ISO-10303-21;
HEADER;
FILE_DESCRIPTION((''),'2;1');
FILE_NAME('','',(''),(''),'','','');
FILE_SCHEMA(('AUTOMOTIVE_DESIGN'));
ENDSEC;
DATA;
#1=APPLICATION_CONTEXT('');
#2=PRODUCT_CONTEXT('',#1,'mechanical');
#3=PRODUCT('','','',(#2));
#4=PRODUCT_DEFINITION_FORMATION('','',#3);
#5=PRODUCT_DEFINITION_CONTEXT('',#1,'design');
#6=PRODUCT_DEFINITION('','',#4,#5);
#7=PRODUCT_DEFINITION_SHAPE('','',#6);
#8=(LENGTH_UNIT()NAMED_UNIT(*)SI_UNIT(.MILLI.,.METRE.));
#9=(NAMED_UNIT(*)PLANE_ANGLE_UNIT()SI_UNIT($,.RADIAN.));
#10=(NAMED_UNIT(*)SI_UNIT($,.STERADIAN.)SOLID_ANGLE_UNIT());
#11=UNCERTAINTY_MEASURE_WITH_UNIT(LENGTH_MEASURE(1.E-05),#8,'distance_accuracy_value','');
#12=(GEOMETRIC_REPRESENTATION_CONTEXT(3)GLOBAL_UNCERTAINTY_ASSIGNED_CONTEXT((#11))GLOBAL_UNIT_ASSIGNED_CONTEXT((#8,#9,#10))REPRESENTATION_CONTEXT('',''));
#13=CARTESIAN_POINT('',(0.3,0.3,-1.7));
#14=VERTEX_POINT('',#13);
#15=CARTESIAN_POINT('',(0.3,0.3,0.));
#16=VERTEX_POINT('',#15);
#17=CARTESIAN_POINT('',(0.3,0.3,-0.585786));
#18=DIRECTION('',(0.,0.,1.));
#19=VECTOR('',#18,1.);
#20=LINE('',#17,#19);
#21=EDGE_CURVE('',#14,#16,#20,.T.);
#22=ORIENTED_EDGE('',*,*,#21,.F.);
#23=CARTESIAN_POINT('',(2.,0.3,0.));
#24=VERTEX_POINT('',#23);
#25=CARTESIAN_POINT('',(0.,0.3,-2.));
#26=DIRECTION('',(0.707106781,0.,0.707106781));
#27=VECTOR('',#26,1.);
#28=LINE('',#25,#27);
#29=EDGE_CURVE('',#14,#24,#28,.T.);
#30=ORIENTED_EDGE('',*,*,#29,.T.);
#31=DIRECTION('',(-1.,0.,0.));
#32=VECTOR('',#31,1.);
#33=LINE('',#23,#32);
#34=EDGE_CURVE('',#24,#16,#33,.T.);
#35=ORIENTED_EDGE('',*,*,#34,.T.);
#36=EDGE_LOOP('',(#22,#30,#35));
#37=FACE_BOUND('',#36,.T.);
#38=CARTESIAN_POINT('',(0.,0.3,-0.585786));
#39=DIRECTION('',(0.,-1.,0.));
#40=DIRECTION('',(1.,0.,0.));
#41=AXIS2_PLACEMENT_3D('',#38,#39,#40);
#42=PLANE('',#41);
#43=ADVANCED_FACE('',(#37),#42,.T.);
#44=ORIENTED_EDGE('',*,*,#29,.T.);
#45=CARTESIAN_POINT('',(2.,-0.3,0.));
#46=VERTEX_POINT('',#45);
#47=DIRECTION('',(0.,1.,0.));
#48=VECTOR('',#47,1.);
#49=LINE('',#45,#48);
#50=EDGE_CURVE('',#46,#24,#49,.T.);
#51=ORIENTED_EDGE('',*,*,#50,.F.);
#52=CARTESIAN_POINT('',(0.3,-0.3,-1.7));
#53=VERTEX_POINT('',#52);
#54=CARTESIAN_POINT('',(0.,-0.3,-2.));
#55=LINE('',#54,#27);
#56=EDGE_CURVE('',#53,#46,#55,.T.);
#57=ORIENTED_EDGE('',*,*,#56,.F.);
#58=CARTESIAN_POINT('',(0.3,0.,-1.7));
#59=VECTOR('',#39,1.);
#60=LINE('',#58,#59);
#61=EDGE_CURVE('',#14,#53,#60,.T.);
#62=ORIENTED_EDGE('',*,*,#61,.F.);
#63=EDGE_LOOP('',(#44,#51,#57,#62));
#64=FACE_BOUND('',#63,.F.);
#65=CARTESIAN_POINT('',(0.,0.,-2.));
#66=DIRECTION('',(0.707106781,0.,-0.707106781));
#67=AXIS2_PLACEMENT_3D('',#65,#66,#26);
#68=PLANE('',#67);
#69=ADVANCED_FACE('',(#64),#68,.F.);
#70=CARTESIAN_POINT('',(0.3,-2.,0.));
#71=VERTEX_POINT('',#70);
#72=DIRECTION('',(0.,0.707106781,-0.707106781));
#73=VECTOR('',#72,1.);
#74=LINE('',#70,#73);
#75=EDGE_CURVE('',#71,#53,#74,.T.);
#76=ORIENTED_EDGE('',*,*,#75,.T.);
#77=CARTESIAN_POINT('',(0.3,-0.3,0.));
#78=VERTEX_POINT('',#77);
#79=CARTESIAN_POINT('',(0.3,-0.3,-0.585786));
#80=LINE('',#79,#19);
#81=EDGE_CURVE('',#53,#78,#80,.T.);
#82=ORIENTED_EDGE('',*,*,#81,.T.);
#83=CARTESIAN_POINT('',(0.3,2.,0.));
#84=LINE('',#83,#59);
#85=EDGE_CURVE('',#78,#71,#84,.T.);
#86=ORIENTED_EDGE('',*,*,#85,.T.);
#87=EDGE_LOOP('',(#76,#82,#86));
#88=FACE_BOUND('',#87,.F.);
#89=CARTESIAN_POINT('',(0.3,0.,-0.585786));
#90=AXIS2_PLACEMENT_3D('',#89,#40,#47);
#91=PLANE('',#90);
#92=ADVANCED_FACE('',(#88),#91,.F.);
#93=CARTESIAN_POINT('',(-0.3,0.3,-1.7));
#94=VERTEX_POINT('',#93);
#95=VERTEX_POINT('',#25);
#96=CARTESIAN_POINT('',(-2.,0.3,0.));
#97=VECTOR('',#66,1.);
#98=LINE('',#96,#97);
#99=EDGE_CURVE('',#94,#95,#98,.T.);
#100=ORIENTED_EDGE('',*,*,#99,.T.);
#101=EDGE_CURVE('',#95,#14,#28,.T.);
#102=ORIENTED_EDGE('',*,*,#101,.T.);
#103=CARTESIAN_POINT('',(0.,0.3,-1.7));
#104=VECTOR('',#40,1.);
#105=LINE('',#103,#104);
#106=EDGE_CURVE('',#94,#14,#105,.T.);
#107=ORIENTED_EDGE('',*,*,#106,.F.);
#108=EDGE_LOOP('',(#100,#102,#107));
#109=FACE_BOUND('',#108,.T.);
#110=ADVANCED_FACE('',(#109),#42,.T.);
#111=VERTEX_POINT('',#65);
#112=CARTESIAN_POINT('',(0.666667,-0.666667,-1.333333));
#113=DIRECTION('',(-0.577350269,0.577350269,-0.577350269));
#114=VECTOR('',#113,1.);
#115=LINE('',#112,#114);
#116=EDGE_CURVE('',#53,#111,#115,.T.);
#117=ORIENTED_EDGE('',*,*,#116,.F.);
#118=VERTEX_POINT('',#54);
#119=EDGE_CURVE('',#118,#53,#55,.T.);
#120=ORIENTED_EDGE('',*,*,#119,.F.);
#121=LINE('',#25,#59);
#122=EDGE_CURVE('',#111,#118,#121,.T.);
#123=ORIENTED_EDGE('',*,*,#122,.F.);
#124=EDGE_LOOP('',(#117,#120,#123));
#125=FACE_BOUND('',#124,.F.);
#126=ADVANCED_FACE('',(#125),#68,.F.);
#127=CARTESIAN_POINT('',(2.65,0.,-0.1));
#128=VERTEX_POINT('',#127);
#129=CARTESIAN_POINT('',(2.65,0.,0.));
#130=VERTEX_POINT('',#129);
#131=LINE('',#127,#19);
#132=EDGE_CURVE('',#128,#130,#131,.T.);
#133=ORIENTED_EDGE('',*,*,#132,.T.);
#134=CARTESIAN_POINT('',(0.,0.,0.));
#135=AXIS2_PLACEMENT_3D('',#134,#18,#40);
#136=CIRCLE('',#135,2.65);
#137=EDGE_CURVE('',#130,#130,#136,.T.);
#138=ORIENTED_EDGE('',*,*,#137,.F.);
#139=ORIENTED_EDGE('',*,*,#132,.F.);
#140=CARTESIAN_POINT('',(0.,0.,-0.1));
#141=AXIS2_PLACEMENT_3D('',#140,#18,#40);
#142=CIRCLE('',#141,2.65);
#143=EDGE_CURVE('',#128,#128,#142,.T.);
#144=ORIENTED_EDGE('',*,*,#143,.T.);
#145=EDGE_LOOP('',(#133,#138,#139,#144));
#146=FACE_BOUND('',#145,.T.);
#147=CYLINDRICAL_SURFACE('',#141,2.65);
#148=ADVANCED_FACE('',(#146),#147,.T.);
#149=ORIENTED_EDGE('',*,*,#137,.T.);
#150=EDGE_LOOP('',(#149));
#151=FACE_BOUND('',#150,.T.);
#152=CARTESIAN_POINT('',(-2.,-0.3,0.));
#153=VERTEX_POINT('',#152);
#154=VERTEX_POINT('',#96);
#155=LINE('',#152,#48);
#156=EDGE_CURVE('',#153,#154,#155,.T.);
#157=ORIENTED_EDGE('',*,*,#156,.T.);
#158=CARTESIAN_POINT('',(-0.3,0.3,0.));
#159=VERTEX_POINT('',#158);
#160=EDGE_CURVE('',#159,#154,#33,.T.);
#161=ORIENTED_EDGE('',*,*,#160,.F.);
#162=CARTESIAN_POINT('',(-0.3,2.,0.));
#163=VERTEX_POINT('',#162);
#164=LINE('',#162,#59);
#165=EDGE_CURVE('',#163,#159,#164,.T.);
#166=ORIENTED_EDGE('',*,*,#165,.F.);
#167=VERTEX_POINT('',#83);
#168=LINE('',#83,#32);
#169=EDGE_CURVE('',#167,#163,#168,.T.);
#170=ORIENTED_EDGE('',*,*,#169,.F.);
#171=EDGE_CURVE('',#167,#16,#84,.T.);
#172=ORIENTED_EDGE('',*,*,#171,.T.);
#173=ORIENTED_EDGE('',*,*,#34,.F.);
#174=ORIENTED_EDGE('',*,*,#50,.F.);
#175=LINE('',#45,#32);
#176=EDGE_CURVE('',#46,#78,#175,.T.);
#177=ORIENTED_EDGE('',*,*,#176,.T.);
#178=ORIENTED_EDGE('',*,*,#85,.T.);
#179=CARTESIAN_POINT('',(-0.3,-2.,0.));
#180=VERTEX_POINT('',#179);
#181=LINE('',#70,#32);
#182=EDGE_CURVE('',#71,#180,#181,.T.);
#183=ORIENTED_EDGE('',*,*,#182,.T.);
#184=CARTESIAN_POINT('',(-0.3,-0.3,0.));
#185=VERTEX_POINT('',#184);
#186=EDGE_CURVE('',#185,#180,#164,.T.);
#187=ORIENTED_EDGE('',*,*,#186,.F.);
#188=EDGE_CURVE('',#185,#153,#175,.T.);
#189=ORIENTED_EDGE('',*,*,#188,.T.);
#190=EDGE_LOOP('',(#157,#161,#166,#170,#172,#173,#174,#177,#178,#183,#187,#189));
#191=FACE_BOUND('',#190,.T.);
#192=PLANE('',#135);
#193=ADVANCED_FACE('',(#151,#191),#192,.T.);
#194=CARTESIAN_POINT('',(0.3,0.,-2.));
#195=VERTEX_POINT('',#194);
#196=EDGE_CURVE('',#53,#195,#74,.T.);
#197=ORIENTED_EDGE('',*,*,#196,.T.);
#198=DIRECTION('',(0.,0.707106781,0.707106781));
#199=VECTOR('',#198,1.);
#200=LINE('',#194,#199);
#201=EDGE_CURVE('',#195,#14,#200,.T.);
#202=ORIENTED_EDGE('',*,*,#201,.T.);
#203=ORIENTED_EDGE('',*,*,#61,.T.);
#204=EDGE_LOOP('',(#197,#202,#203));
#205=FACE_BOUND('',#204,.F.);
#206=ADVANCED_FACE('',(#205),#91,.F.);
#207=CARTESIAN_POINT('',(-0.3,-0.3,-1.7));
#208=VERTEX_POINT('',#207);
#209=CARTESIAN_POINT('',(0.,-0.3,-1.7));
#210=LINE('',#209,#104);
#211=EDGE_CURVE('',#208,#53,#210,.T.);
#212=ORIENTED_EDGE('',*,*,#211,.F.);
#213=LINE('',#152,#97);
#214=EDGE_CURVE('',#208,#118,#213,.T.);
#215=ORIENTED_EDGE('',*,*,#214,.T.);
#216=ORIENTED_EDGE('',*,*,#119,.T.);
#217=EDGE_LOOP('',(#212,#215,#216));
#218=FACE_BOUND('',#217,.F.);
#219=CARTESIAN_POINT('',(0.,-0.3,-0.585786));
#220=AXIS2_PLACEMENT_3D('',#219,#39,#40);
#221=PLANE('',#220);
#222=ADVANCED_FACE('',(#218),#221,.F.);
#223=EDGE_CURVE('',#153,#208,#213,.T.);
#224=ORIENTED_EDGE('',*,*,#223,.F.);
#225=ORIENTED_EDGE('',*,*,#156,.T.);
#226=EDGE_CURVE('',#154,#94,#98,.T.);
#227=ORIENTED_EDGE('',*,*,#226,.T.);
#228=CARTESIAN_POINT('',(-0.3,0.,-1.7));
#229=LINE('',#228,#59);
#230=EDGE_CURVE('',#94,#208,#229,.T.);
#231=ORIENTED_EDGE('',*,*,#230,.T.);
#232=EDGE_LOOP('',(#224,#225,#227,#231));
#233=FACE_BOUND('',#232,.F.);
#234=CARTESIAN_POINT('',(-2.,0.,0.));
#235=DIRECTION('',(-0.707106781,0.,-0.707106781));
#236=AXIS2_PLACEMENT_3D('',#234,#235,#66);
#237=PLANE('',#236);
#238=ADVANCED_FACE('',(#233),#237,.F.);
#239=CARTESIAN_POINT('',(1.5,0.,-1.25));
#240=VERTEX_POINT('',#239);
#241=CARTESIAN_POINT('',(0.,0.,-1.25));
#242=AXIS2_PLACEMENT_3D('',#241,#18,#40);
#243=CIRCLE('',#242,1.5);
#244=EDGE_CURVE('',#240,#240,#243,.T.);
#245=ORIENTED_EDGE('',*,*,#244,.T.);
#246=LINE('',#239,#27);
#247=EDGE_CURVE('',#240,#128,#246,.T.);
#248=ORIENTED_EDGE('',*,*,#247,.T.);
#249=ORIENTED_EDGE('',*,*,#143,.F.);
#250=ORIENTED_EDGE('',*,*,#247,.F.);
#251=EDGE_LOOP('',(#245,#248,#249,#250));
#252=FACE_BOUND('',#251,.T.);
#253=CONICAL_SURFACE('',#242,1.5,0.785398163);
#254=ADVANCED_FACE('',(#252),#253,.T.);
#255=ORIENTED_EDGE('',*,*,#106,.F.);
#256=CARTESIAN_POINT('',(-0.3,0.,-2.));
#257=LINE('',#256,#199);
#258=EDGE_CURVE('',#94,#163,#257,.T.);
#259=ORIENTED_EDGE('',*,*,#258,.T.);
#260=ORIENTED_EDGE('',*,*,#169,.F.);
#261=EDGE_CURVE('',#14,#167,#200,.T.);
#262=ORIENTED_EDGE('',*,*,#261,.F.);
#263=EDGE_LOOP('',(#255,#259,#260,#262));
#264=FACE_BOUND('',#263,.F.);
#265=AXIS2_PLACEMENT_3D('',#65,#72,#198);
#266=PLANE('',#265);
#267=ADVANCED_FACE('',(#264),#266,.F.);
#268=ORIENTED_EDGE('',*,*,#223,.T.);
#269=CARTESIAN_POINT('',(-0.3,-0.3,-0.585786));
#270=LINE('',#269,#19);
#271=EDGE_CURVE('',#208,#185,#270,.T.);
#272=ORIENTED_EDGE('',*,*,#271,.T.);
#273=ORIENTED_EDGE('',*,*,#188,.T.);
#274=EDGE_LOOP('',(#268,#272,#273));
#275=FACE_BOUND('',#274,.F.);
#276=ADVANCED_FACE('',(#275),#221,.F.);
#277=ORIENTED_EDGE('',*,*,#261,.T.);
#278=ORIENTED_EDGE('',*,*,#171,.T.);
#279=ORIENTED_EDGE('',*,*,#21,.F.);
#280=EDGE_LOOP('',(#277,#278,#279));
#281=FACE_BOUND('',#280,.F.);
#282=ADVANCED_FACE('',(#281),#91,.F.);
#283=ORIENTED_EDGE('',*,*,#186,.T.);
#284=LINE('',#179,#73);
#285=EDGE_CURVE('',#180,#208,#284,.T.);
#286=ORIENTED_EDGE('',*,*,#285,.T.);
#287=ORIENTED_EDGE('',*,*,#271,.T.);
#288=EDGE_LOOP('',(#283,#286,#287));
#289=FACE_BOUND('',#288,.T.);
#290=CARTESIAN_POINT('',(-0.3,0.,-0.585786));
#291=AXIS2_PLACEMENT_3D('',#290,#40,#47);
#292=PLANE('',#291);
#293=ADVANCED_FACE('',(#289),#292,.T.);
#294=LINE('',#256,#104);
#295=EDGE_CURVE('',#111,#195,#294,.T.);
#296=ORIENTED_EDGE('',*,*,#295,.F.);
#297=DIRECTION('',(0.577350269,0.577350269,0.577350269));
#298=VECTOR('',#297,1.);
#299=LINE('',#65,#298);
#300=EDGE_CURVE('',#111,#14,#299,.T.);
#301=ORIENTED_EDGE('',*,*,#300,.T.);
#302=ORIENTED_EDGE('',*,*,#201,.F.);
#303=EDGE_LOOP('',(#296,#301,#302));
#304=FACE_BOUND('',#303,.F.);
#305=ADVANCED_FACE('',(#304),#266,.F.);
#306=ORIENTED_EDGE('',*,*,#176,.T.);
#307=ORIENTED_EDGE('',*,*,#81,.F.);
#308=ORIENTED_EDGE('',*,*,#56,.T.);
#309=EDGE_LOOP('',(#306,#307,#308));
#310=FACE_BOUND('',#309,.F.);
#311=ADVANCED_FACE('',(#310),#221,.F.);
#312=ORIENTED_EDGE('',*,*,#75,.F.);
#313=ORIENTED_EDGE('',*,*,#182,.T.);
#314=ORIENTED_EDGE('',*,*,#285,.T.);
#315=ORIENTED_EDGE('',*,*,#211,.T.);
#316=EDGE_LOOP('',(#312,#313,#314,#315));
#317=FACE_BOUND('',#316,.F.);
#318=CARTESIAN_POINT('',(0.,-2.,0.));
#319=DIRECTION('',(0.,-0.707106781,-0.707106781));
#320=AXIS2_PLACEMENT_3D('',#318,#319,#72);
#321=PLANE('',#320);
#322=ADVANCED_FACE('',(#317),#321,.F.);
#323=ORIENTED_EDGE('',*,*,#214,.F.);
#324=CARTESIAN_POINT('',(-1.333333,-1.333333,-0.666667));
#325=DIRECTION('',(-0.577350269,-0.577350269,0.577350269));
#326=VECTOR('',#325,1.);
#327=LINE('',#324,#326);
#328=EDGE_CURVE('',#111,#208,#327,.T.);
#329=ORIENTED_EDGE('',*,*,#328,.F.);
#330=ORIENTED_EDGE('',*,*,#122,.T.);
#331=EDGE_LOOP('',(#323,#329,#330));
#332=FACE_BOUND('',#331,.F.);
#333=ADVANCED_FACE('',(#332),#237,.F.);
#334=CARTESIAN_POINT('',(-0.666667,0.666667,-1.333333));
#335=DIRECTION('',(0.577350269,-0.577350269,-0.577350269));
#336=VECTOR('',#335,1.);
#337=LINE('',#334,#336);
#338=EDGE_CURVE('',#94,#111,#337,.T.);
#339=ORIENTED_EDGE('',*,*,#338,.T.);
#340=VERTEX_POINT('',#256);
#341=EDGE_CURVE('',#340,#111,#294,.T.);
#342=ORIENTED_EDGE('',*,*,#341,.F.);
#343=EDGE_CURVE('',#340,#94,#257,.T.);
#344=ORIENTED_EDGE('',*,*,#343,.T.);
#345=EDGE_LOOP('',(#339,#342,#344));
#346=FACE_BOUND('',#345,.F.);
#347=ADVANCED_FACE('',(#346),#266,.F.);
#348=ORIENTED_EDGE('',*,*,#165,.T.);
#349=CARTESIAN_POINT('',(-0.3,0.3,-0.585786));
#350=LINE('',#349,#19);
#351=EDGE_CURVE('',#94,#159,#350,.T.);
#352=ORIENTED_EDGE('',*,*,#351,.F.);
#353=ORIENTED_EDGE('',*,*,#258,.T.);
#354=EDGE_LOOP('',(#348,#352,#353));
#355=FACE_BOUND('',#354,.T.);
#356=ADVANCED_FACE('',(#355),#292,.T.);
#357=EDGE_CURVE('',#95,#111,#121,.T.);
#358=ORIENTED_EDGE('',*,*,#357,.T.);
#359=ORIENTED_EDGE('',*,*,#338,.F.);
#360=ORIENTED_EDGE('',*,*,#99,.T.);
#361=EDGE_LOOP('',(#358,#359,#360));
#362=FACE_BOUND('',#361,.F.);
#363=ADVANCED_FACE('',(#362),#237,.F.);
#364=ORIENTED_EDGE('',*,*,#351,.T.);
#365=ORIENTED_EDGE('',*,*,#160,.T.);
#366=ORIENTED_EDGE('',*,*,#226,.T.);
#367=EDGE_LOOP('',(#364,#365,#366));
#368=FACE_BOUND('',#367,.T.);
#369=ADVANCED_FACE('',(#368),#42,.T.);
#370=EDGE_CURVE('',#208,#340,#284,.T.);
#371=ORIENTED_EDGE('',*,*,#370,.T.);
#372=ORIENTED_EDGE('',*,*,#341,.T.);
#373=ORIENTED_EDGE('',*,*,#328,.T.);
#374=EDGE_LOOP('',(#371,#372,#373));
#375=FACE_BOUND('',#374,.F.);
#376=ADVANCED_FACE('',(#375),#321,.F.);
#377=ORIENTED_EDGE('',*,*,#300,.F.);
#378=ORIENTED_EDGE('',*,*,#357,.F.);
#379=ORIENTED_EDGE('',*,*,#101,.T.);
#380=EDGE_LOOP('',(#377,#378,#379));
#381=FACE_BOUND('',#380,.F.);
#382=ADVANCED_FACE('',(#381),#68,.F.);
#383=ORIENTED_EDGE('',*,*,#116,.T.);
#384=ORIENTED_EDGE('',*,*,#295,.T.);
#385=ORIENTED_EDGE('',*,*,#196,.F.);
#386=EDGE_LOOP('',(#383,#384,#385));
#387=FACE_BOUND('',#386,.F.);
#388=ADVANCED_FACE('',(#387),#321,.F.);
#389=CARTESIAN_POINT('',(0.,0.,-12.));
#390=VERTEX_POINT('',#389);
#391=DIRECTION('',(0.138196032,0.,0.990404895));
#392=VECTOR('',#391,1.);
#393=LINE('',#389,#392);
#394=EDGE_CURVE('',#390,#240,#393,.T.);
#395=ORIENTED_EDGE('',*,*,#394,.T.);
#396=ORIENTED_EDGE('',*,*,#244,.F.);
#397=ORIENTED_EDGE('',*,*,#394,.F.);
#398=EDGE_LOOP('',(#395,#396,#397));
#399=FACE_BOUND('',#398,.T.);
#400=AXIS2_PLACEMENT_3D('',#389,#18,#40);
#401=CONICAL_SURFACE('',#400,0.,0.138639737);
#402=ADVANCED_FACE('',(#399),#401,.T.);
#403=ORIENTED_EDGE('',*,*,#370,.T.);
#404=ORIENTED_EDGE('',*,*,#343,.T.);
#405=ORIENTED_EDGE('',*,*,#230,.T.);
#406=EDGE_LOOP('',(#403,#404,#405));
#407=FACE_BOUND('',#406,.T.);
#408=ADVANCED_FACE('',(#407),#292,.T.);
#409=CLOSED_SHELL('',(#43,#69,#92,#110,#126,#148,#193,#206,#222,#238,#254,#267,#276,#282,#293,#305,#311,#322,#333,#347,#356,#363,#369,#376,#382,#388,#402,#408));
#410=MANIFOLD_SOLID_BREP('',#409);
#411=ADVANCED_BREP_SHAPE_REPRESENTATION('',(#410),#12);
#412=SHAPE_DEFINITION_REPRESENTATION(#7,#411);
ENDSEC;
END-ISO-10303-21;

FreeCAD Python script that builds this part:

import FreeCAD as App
import Part
import Sketcher
from FreeCAD import Vector
Q = App.Units.Quantity

doc = App.newDocument("Part")
params = doc.addObject("Spreadsheet::Sheet", "Params")
for row, (alias, value) in enumerate([
    ("sketch1_height", "12 mm"),
    ("sketch1_height2", "0.1 mm"),
    ("sketch1_width", "2.65 mm"),
    ("revolution_angle", "360 deg"),
    ("sketch2_width", "4 mm"),
    ("pocket1_length", "0.6 mm"),
], start=1):
    params.set(f"A{row}", alias)
    params.set(f"B{row}", "=" + value)
    params.setAlias(f"B{row}", alias)

body = doc.addObject("PartDesign::Body", "Body")

# Sketch on XZ plane
sketch1 = doc.addObject("Sketcher::SketchObject", "Sketch")
body.addObject(sketch1)
sketch1.AttachmentSupport = (doc.XZ_Plane, [""])
sketch1.MapMode = "FlatFace"
sketch1.addGeometry([
    Part.LineSegment(Vector(0, 0, 0), Vector(0, -12, 0)),  # 0
    Part.LineSegment(Vector(0, -12, 0), Vector(1.5, -1.25, 0)),  # 1
    Part.LineSegment(Vector(1.5, -1.25, 0), Vector(2.65, -0.1, 0)),  # 2
    Part.LineSegment(Vector(2.65, -0.1, 0), Vector(2.65, 0, 0)),  # 3
    Part.LineSegment(Vector(2.65, 0, 0), Vector(0, 0, 0)),  # 4
], False)
sketch1.addConstraint([
    Sketcher.Constraint("Coincident", 0, 2, 1, 1),
    Sketcher.Constraint("Coincident", 1, 2, 2, 1),
    Sketcher.Constraint("Coincident", 2, 2, 3, 1),
    Sketcher.Constraint("Coincident", 3, 2, 4, 1),
    Sketcher.Constraint("Coincident", 4, 2, 0, 1),
    Sketcher.Constraint("Vertical", 0),
    Sketcher.Constraint("Vertical", 3),
    Sketcher.Constraint("Horizontal", 4),
    Sketcher.Constraint("Coincident", 4, 2, -1, 1),
    Sketcher.Constraint("DistanceY", 0, 2, 0, 1, Q("12 mm")),
    Sketcher.Constraint("Angle", 2, Q("45 deg")),
    Sketcher.Constraint("DistanceY", 3, 1, 3, 2, Q("0.1 mm")),
    Sketcher.Constraint("DistanceX", 4, 2, 4, 1, Q("2.65 mm")),
    Sketcher.Constraint("DistanceX", -1, 1, 1, 2, Q("1.5 mm")),
])
sketch1.setExpression("Constraints[9]", "Params.sketch1_height")
sketch1.setExpression("Constraints[11]", "Params.sketch1_height2")
sketch1.setExpression("Constraints[12]", "Params.sketch1_width")
revolution = doc.addObject("PartDesign::Revolution", "Revolution")
body.addObject(revolution)
revolution.Profile = sketch1
revolution.ReferenceAxis = (sketch1, ["V_Axis"])
revolution.setExpression("Angle", "Params.revolution_angle")

# Sketch on XZ plane
sketch2 = doc.addObject("Sketcher::SketchObject", "Sketch001")
body.addObject(sketch2)
sketch2.AttachmentSupport = (doc.XZ_Plane, [""])
sketch2.MapMode = "FlatFace"
sketch2.addGeometry([
    Part.LineSegment(Vector(-2, 0, 0), Vector(0, -2, 0)),
    Part.LineSegment(Vector(0, -2, 0), Vector(2, 0, 0)),
    Part.LineSegment(Vector(2, 0, 0), Vector(-2, 0, 0)),
], False)
sketch2.addConstraint([
    Sketcher.Constraint("Coincident", 0, 2, 1, 1),
    Sketcher.Constraint("Coincident", 1, 2, 2, 1),
    Sketcher.Constraint("Coincident", 2, 2, 0, 1),
    Sketcher.Constraint("Horizontal", 2),
    Sketcher.Constraint("Symmetric", 1, 2, 2, 2, -1, 1),
    Sketcher.Constraint("PointOnObject", 0, 2, -2),
    Sketcher.Constraint("Perpendicular", 0, 1),
    Sketcher.Constraint("DistanceX", 2, 2, 2, 1, Q("4 mm")),
])
sketch2.setExpression("Constraints[7]", "Params.sketch2_width")
pocket1 = doc.addObject("PartDesign::Pocket", "Pocket")
body.addObject(pocket1)
pocket1.Profile = sketch2
pocket1.setExpression("Length", "Params.pocket1_length")
pocket1.Midplane = True
doc.recompute()

polarpattern = doc.addObject("PartDesign::PolarPattern", "PolarPattern")
body.addObject(polarpattern)
polarpattern.Originals = [pocket1]
polarpattern.Axis = (doc.Z_Axis, [""])
polarpattern.Angle = 90
polarpattern.Occurrences = 2
body.Tip = polarpattern

doc.recompute()
